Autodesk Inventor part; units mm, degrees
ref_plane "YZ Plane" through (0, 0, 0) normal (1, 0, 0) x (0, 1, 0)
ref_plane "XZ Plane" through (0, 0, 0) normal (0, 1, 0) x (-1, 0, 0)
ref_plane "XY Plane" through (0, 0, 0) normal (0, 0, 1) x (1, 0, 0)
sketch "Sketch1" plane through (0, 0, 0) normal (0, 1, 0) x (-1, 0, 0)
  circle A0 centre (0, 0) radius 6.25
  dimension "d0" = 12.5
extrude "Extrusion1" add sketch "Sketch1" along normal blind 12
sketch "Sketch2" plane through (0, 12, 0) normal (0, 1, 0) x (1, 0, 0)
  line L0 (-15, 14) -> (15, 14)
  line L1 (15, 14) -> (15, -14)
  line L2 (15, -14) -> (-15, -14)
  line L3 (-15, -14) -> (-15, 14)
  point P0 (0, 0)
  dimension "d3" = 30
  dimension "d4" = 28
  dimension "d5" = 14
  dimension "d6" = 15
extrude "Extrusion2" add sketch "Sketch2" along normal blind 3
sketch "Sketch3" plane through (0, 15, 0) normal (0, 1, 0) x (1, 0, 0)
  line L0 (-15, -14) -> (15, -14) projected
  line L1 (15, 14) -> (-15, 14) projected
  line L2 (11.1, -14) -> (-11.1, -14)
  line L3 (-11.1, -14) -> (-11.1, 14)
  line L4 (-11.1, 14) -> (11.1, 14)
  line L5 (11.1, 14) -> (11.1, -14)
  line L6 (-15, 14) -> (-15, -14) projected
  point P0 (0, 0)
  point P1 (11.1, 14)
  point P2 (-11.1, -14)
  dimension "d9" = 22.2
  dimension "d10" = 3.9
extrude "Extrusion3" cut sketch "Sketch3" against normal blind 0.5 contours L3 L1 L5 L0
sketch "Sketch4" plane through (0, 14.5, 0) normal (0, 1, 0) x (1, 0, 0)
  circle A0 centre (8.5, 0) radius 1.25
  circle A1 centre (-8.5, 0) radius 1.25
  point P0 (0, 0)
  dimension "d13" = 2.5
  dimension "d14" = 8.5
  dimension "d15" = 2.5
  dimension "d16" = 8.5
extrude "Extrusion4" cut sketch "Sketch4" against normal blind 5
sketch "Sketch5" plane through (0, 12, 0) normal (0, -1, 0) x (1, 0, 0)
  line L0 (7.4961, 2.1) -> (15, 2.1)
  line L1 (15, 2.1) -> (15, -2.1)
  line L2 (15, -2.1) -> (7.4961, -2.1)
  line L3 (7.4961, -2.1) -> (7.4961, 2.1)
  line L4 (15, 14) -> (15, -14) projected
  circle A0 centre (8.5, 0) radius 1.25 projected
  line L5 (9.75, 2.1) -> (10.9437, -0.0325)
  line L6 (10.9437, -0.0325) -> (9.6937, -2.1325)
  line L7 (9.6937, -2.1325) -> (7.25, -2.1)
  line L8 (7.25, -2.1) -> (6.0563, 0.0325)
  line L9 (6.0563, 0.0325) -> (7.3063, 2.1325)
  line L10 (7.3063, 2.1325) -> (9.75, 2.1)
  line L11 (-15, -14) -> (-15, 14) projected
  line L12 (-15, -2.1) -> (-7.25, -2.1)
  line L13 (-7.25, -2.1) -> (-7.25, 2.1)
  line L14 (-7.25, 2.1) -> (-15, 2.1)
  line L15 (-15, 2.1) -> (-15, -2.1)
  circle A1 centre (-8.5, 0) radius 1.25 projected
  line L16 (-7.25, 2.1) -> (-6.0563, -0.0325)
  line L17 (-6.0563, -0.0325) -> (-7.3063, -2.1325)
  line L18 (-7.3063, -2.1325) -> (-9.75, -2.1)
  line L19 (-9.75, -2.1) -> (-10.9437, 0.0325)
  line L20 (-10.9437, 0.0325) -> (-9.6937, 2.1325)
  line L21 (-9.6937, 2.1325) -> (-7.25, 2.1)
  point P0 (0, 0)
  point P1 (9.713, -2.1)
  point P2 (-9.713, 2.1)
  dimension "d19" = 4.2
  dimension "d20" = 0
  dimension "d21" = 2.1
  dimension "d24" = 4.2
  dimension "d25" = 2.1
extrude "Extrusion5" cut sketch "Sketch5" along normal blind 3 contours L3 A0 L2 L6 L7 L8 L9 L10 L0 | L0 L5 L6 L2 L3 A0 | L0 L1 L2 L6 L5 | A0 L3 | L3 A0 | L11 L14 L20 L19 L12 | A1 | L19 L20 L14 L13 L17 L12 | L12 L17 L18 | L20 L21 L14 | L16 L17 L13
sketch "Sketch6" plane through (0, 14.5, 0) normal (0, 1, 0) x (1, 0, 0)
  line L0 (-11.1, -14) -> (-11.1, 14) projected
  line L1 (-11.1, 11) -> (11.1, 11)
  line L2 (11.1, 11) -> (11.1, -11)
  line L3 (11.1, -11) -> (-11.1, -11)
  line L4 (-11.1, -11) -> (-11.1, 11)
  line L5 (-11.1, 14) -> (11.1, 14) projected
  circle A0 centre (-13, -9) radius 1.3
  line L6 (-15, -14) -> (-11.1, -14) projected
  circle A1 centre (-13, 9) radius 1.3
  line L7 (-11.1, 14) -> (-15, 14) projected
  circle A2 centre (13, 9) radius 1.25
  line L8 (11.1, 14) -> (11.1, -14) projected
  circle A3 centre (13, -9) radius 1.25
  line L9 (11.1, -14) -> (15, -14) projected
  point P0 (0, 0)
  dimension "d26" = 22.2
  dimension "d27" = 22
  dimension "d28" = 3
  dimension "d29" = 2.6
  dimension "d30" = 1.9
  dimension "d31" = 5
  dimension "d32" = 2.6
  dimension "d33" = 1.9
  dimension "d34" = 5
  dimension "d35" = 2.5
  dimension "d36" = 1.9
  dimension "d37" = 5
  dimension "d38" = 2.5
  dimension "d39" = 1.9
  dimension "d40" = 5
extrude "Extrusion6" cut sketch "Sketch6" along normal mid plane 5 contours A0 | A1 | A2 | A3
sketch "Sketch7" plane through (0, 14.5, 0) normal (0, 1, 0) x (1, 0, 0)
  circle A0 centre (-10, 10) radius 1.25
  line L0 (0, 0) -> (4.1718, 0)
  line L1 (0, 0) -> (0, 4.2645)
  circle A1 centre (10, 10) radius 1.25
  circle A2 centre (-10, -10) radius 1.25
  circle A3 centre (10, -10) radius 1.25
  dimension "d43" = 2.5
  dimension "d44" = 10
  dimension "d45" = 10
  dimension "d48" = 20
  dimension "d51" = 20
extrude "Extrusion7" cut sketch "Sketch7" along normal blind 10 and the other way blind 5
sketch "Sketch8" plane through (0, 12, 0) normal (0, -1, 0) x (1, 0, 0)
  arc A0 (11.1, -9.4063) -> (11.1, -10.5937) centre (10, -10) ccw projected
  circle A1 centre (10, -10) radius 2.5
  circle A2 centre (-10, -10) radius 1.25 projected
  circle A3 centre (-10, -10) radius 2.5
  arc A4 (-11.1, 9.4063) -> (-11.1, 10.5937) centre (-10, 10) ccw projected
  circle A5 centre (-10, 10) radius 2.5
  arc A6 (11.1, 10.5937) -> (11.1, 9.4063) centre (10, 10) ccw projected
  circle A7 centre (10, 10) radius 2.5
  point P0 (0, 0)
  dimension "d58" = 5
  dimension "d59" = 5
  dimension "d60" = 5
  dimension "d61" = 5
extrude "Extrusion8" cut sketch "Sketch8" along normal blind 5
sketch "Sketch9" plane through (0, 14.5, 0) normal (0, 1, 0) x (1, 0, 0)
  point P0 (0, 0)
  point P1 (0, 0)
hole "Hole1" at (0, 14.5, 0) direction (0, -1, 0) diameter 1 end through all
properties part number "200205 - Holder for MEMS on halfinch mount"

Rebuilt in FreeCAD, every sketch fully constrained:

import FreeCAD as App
import Part
import Sketcher


def add_polygon(sketch, points):
    """Adds a closed chain of lines whose ends are joined by coincident constraints."""
    first, n = sketch.GeometryCount, len(points)
    for a, b in zip(points, points[1:] + points[:1]):
        sketch.addGeometry(Part.LineSegment(App.Vector(*a, 0), App.Vector(*b, 0)), False)
    for i in range(n):
        sketch.addConstraint(Sketcher.Constraint("Coincident", first + i, 2, first + (i + 1) % n, 1))

doc = App.newDocument("Part")
body = doc.addObject("PartDesign::Body", "Body")

# Sketch on XZ plane
sketch1 = body.newObject("Sketcher::SketchObject", "Sketch")
sketch1.AttachmentSupport = (doc.getObject("XZ_Plane"), [""])
sketch1.MapMode = "FlatFace"
sketch1.addGeometry(Part.Circle(App.Vector(0, 0, 0), App.Vector(0, 0, 1), 6), False)
sketch1.addConstraint([
    Sketcher.Constraint("Coincident", 0, 3, -1, 1),
    Sketcher.Constraint("Diameter", 0, 12.5),
])
pad1 = body.newObject("PartDesign::Pad", "Pad")
pad1.Profile = sketch1
pad1.Length = 12
pad1.Reversed = True

# Sketch on XZ plane
sketch2 = body.newObject("Sketcher::SketchObject", "Sketch001")
sketch2.AttachmentSupport = (doc.getObject("XZ_Plane"), [""])
sketch2.MapMode = "FlatFace"
sketch2.AttachmentOffset = App.Placement(App.Vector(0, 0, -12), App.Rotation())
add_polygon(sketch2, [(15, -14), (-15, -14), (-15, 14), (15, 14)])  # lines 0-3
sketch2.addConstraint([
    Sketcher.Constraint("Horizontal", 0),
    Sketcher.Constraint("Vertical", 1),
    Sketcher.Constraint("Horizontal", 2),
    Sketcher.Constraint("Vertical", 3),
    Sketcher.Constraint("Symmetric", 0, 2, 2, 2, -1, 1),
    Sketcher.Constraint("DistanceX", 0, 2, 0, 1, 30.0),
    Sketcher.Constraint("DistanceY", 1, 1, 1, 2, 28.0),
])
pad2 = body.newObject("PartDesign::Pad", "Pad001")
pad2.Profile = sketch2
pad2.Length = 3
pad2.Reversed = True

# Sketch on XZ plane
sketch3 = body.newObject("Sketcher::SketchObject", "Sketch002")
sketch3.AttachmentSupport = (doc.getObject("XZ_Plane"), [""])
sketch3.MapMode = "FlatFace"
sketch3.AttachmentOffset = App.Placement(App.Vector(0, 0, -15), App.Rotation())
add_polygon(sketch3, [(-11, -14), (-11, 14), (11, 14), (11, -14)])  # lines 0-3
sketch3.addConstraint([
    Sketcher.Constraint("Vertical", 0),
    Sketcher.Constraint("Horizontal", 1),
    Sketcher.Constraint("Vertical", 2),
    Sketcher.Constraint("Horizontal", 3),
    Sketcher.Constraint("Symmetric", 0, 2, 2, 2, -1, 1),
    Sketcher.Constraint("DistanceX", 1, 1, 1, 2, 22.2),
    Sketcher.Constraint("DistanceY", 0, 1, 0, 2, 28.0),
])
pocket1 = body.newObject("PartDesign::Pocket", "Pocket")
pocket1.Profile = sketch3
pocket1.Length = 0.5
pocket1.Reversed = True

# Sketch on XZ plane
sketch4 = body.newObject("Sketcher::SketchObject", "Sketch003")
sketch4.AttachmentSupport = (doc.getObject("XZ_Plane"), [""])
sketch4.MapMode = "FlatFace"
sketch4.AttachmentOffset = App.Placement(App.Vector(0, 0, -14.5), App.Rotation())
sketch4.addGeometry([
    Part.Circle(App.Vector(8.5, 0, 0), App.Vector(0, 0, 1), 1.2),
    Part.Circle(App.Vector(-8.5, 0, 0), App.Vector(0, 0, 1), 1.2),
], False)
sketch4.addConstraint([
    Sketcher.Constraint("Equal", 0, 1),
    Sketcher.Constraint("Symmetric", 0, 3, 1, 3, -1, 1),
    Sketcher.Constraint("PointOnObject", 0, 3, -1),
    Sketcher.Constraint("Diameter", 0, 2.5),
    Sketcher.Constraint("DistanceX", -1, 1, 0, 3, 8.5),
])
pocket2 = body.newObject("PartDesign::Pocket", "Pocket001")
pocket2.Profile = sketch4
pocket2.Length = 5
pocket2.Reversed = True

# Sketch on XZ plane
sketch5 = body.newObject("Sketcher::SketchObject", "Sketch004")
sketch5.AttachmentSupport = (doc.getObject("XZ_Plane"), [""])
sketch5.MapMode = "FlatFace"
sketch5.AttachmentOffset = App.Placement(App.Vector(0, 0, -12), App.Rotation())
add_polygon(sketch5, [(9.694, -2.132), (9.713, -2.1), (15, -2.1), (15, 2.1), (9.75, 2.1), (7.306, 2.132), (6.056, 0.033), (7.25, -2.1)])  # lines 0-7
add_polygon(sketch5, [(-15, 2.1), (-15, -2.1), (-9.75, -2.1), (-7.306, -2.132), (-6.056, -0.033), (-7.25, 2.1), (-9.694, 2.132), (-9.713, 2.1)])  # lines 8-15
sketch5.addConstraint([
    Sketcher.Constraint("Horizontal", 1),
    Sketcher.Constraint("Vertical", 2),
    Sketcher.Constraint("Horizontal", 3),
    Sketcher.Constraint("Vertical", 8),
    Sketcher.Constraint("Horizontal", 9),
    Sketcher.Constraint("Horizontal", 15),
    Sketcher.Constraint("Symmetric", 2, 2, 8, 2, -1, 1),
    Sketcher.Constraint("Symmetric", 4, 2, 10, 2, -1, 1),
    Sketcher.Constraint("Symmetric", 5, 2, 11, 2, -1, 1),
    Sketcher.Constraint("Symmetric", 6, 2, 12, 2, -1, 1),
    Sketcher.Constraint("Symmetric", 7, 2, 13, 2, -1, 1),
    Sketcher.Constraint("Symmetric", 0, 2, 14, 2, -1, 1),
    Sketcher.Constraint("Parallel", 0, 5),
    Sketcher.Constraint("Parallel", 4, 7),
    Sketcher.Constraint("Parallel", 7, 10),
    Sketcher.Constraint("Horizontal", 1, 2, 6, 2),
    Sketcher.Constraint("Horizontal", 6, 2, 8, 2),
    Sketcher.Constraint("Horizontal", 7, 2, 10, 2),
    Sketcher.Constraint("Equal", 4, 5),
    Sketcher.Constraint("Equal", 5, 6),
    Sketcher.Constraint("DistanceY", 2, 1, 2, 2, 4.2),
    Sketcher.Constraint("DistanceY", 5, 2, 4, 2, 2.1),
    Sketcher.Constraint("DistanceX", -1, 1, 1, 2, 15.0),
    Sketcher.Constraint("DistanceX", 9, 2, 6, 2, 17.0),
    Sketcher.Constraint("DistanceX", 3, 2, 3, 1, 5.25),
    Sketcher.Constraint("DistanceX", 1, 1, 1, 2, 5.287),
])
pocket3 = body.newObject("PartDesign::Pocket", "Pocket002")
pocket3.Profile = sketch5
pocket3.Length = 3
pocket3.Reversed = True

# Sketch on XZ plane
sketch6 = body.newObject("Sketcher::SketchObject", "Sketch005")
sketch6.AttachmentSupport = (doc.getObject("XZ_Plane"), [""])
sketch6.MapMode = "FlatFace"
sketch6.AttachmentOffset = App.Placement(App.Vector(0, 0, -14.5), App.Rotation())
sketch6.addGeometry([
    Part.Circle(App.Vector(-13, 9, 0), App.Vector(0, 0, 1), 1.3),
    Part.Circle(App.Vector(-13, -9, 0), App.Vector(0, 0, 1), 1.3),
    Part.Circle(App.Vector(13, -9, 0), App.Vector(0, 0, 1), 1.2),
    Part.Circle(App.Vector(13, 9, 0), App.Vector(0, 0, 1), 1.2),
], False)
sketch6.addConstraint([
    Sketcher.Constraint("Equal", 0, 1),
    Sketcher.Constraint("Equal", 2, 3),
    Sketcher.Constraint("Symmetric", 0, 3, 2, 3, -1, 1),
    Sketcher.Constraint("Symmetric", 1, 3, 3, 3, -1, 1),
    Sketcher.Constraint("Symmetric", 1, 3, 2, 3, -2),
    Sketcher.Constraint("Diameter", 0, 2.6),
    Sketcher.Constraint("Diameter", 2, 2.5),
    Sketcher.Constraint("DistanceX", 0, 3, -1, 1, 13.0),
    Sketcher.Constraint("DistanceY", -1, 1, 0, 3, 9.0),
])
pocket4 = body.newObject("PartDesign::Pocket", "Pocket003")
pocket4.Profile = sketch6
pocket4.Length = 5
pocket4.Midplane = True

# Sketch on XZ plane
sketch7 = body.newObject("Sketcher::SketchObject", "Sketch006")
sketch7.AttachmentSupport = (doc.getObject("XZ_Plane"), [""])
sketch7.MapMode = "FlatFace"
sketch7.AttachmentOffset = App.Placement(App.Vector(0, 0, -14.5), App.Rotation())
sketch7.addGeometry([
    Part.Circle(App.Vector(-10, -10, 0), App.Vector(0, 0, 1), 1.2),
    Part.Circle(App.Vector(10, -10, 0), App.Vector(0, 0, 1), 1.2),
    Part.Circle(App.Vector(-10, 10, 0), App.Vector(0, 0, 1), 1.2),
    Part.Circle(App.Vector(10, 10, 0), App.Vector(0, 0, 1), 1.2),
], False)
sketch7.addConstraint([
    Sketcher.Constraint("Equal", 0, 1),
    Sketcher.Constraint("Equal", 1, 2),
    Sketcher.Constraint("Equal", 2, 3),
    Sketcher.Constraint("Symmetric", 1, 3, 2, 3, -1, 1),
    Sketcher.Constraint("Symmetric", 0, 3, 3, 3, -1, 1),
    Sketcher.Constraint("Symmetric", 0, 3, 1, 3, -2),
    Sketcher.Constraint("Diameter", 0, 2.5),
    Sketcher.Constraint("DistanceX", 0, 3, -1, 1, 10.0),
    Sketcher.Constraint("DistanceY", 0, 3, -1, 1, 10.0),
])
pocket5 = body.newObject("PartDesign::Pocket", "Pocket004")
pocket5.Profile = sketch7
pocket5.Type = "ThroughAll"
pocket5.Midplane = True

# Sketch on XZ plane
sketch8 = body.newObject("Sketcher::SketchObject", "Sketch007")
sketch8.AttachmentSupport = (doc.getObject("XZ_Plane"), [""])
sketch8.MapMode = "FlatFace"
sketch8.AttachmentOffset = App.Placement(App.Vector(0, 0, -12), App.Rotation())
sketch8.addGeometry([
    Part.Circle(App.Vector(10, -10, 0), App.Vector(0, 0, 1), 2.5),  # 0
    Part.Circle(App.Vector(-10, -10, 0), App.Vector(0, 0, 1), 2.5),  # 1
    Part.Circle(App.Vector(-10, -10, 0), App.Vector(0, 0, 1), 1.2),  # 2
    Part.Circle(App.Vector(-10, 10, 0), App.Vector(0, 0, 1), 2.5),  # 3
    Part.Circle(App.Vector(10, 10, 0), App.Vector(0, 0, 1), 2.5),  # 4
], False)
sketch8.addConstraint([
    Sketcher.Constraint("Coincident", 2, 3, 1, 3),
    Sketcher.Constraint("Equal", 0, 1),
    Sketcher.Constraint("Equal", 1, 3),
    Sketcher.Constraint("Equal", 3, 4),
    Sketcher.Constraint("Symmetric", 0, 3, 3, 3, -1, 1),
    Sketcher.Constraint("Symmetric", 1, 3, 4, 3, -1, 1),
    Sketcher.Constraint("Symmetric", 0, 3, 1, 3, -2),
    Sketcher.Constraint("Diameter", 0, 5.0),
    Sketcher.Constraint("Diameter", 2, 2.5),
    Sketcher.Constraint("DistanceX", -1, 1, 0, 3, 10.0),
    Sketcher.Constraint("DistanceY", 0, 3, -1, 1, 10.0),
])
pocket6 = body.newObject("PartDesign::Pocket", "Pocket005")
pocket6.Profile = sketch8
pocket6.Length = 5
pocket6.Reversed = True

# Sketch on XZ plane
sketch9 = body.newObject("Sketcher::SketchObject", "Sketch008")
sketch9.AttachmentSupport = (doc.getObject("XZ_Plane"), [""])
sketch9.MapMode = "FlatFace"
sketch9.AttachmentOffset = App.Placement(App.Vector(0, 0, -14.5), App.Rotation())
sketch9.addGeometry(Part.Circle(App.Vector(0, 0, 0), App.Vector(0, 0, 1), 0.5), False)
sketch9.addConstraint([
    Sketcher.Constraint("Coincident", 0, 3, -1, 1),
    Sketcher.Constraint("Diameter", 0, 1.0),
])
doc.recompute()
hole = body.newObject("PartDesign::Hole", "Hole")
hole.Profile = sketch9
hole.ThreadType = "None"
hole.Diameter = 1
hole.DepthType = "ThroughAll"
hole.Reversed = True

doc.recompute()
